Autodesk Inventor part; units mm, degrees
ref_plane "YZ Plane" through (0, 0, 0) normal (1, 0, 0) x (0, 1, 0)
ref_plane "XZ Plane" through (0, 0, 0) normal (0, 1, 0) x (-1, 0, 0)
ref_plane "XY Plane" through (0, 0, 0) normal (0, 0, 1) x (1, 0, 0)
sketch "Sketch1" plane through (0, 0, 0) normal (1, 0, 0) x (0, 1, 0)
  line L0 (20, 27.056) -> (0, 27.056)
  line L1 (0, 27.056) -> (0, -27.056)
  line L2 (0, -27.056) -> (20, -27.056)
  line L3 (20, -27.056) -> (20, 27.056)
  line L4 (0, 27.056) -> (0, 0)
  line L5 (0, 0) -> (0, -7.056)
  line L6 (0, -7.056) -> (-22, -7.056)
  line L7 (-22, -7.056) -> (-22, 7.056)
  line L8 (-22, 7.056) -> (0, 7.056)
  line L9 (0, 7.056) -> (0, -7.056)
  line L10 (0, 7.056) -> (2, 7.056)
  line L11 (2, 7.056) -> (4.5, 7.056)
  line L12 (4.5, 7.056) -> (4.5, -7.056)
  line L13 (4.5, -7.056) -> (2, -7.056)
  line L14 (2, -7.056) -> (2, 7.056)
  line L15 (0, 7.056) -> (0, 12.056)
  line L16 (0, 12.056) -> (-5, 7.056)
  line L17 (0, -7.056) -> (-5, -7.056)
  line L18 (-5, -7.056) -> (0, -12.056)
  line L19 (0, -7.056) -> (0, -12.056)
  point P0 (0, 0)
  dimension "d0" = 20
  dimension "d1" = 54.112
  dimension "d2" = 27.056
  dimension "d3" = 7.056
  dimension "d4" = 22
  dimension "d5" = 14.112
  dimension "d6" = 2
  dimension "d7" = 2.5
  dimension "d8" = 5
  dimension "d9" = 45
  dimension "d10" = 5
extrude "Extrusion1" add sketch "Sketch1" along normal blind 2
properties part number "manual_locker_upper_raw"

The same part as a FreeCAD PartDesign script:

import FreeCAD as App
import Part
import Sketcher
from FreeCAD import Vector
Q = App.Units.Quantity

doc = App.newDocument("Part")
body = doc.addObject("PartDesign::Body", "Body")

# Sketch on YZ plane
sketch1 = body.newObject("Sketcher::SketchObject", "Sketch")
sketch1.AttachmentSupport = (doc.getObject("YZ_Plane"), [""])
sketch1.MapMode = "FlatFace"
sketch1.addGeometry(Part.LineSegment(Vector(20, -27.1, 0), Vector(20, 27.1, 0)), False)
sketch1.addGeometry(Part.LineSegment(Vector(20, 27.1, 0), Vector(0, 27.1, 0)), False)
sketch1.addGeometry(Part.LineSegment(Vector(0, 27.1, 0), Vector(0, 12.1, 0)), False)
sketch1.addGeometry(Part.LineSegment(Vector(0, 12.1, 0), Vector(-5, 7.1, 0)), False)
sketch1.addGeometry(Part.LineSegment(Vector(-5, 7.1, 0), Vector(-22, 7.1, 0)), False)
sketch1.addGeometry(Part.LineSegment(Vector(-22, 7.1, 0), Vector(-22, -7.1, 0)), False)
sketch1.addGeometry(Part.LineSegment(Vector(-22, -7.1, 0), Vector(-5, -7.1, 0)), False)
sketch1.addGeometry(Part.LineSegment(Vector(-5, -7.1, 0), Vector(0, -12.1, 0)), False)
sketch1.addGeometry(Part.LineSegment(Vector(0, -12.1, 0), Vector(0, -27.1, 0)), False)
sketch1.addGeometry(Part.LineSegment(Vector(0, -27.1, 0), Vector(20, -27.1, 0)), False)
sketch1.addGeometry(Part.LineSegment(Vector(2, -7.1, 0), Vector(2, 7.1, 0)), False)
sketch1.addGeometry(Part.LineSegment(Vector(2, 7.1, 0), Vector(4.5, 7.1, 0)), False)
sketch1.addGeometry(Part.LineSegment(Vector(4.5, 7.1, 0), Vector(4.5, -7.1, 0)), False)
sketch1.addGeometry(Part.LineSegment(Vector(4.5, -7.1, 0), Vector(2, -7.1, 0)), False)
sketch1.addConstraint(Sketcher.Constraint("Coincident", 0, 2, 1, 1))
sketch1.addConstraint(Sketcher.Constraint("Coincident", 1, 2, 2, 1))
sketch1.addConstraint(Sketcher.Constraint("Coincident", 2, 2, 3, 1))
sketch1.addConstraint(Sketcher.Constraint("Coincident", 3, 2, 4, 1))
sketch1.addConstraint(Sketcher.Constraint("Coincident", 4, 2, 5, 1))
sketch1.addConstraint(Sketcher.Constraint("Coincident", 5, 2, 6, 1))
sketch1.addConstraint(Sketcher.Constraint("Coincident", 6, 2, 7, 1))
sketch1.addConstraint(Sketcher.Constraint("Coincident", 7, 2, 8, 1))
sketch1.addConstraint(Sketcher.Constraint("Coincident", 8, 2, 9, 1))
sketch1.addConstraint(Sketcher.Constraint("Coincident", 9, 2, 0, 1))
sketch1.addConstraint(Sketcher.Constraint("Coincident", 10, 2, 11, 1))
sketch1.addConstraint(Sketcher.Constraint("Coincident", 11, 2, 12, 1))
sketch1.addConstraint(Sketcher.Constraint("Coincident", 12, 2, 13, 1))
sketch1.addConstraint(Sketcher.Constraint("Coincident", 13, 2, 10, 1))
sketch1.addConstraint(Sketcher.Constraint("Vertical", 0))
sketch1.addConstraint(Sketcher.Constraint("Horizontal", 1))
sketch1.addConstraint(Sketcher.Constraint("Vertical", 2))
sketch1.addConstraint(Sketcher.Constraint("Horizontal", 4))
sketch1.addConstraint(Sketcher.Constraint("Vertical", 5))
sketch1.addConstraint(Sketcher.Constraint("Horizontal", 6))
sketch1.addConstraint(Sketcher.Constraint("Vertical", 8))
sketch1.addConstraint(Sketcher.Constraint("Horizontal", 9))
sketch1.addConstraint(Sketcher.Constraint("Vertical", 10))
sketch1.addConstraint(Sketcher.Constraint("Horizontal", 11))
sketch1.addConstraint(Sketcher.Constraint("Vertical", 12))
sketch1.addConstraint(Sketcher.Constraint("Horizontal", 13))
sketch1.addConstraint(Sketcher.Constraint("Symmetric", 2, 2, 7, 2, -1, 1))
sketch1.addConstraint(Sketcher.Constraint("Symmetric", 3, 2, 6, 2, -1))
sketch1.addConstraint(Sketcher.Constraint("Symmetric", 1, 2, 8, 2, -1))
sketch1.addConstraint(Sketcher.Constraint("Perpendicular", 3, 7))
sketch1.addConstraint(Sketcher.Constraint("Horizontal", 4, 2, 10, 2))
sketch1.addConstraint(Sketcher.Constraint("Horizontal", 6, 2, 12, 2))
sketch1.addConstraint(Sketcher.Constraint("DistanceX", 1, 2, 1, 1, Q("20 mm")))
sketch1.addConstraint(Sketcher.Constraint("DistanceX", 11, 1, 11, 2, Q("2.5 mm")))
sketch1.addConstraint(Sketcher.Constraint("DistanceX", 3, 2, -1, 1, Q("5 mm")))
sketch1.addConstraint(Sketcher.Constraint("DistanceX", 4, 2, -1, 1, Q("22 mm")))
sketch1.addConstraint(Sketcher.Constraint("DistanceX", -1, 1, 10, 2, Q("2 mm")))
sketch1.addConstraint(Sketcher.Constraint("DistanceY", 3, 2, 1, 2, Q("20 mm")))
sketch1.addConstraint(Sketcher.Constraint("DistanceY", 0, 1, 0, 2, Q("54.112 mm")))
pad1 = body.newObject("PartDesign::Pad", "Pad")
pad1.Profile = sketch1
pad1.Length = 2

doc.recompute()
